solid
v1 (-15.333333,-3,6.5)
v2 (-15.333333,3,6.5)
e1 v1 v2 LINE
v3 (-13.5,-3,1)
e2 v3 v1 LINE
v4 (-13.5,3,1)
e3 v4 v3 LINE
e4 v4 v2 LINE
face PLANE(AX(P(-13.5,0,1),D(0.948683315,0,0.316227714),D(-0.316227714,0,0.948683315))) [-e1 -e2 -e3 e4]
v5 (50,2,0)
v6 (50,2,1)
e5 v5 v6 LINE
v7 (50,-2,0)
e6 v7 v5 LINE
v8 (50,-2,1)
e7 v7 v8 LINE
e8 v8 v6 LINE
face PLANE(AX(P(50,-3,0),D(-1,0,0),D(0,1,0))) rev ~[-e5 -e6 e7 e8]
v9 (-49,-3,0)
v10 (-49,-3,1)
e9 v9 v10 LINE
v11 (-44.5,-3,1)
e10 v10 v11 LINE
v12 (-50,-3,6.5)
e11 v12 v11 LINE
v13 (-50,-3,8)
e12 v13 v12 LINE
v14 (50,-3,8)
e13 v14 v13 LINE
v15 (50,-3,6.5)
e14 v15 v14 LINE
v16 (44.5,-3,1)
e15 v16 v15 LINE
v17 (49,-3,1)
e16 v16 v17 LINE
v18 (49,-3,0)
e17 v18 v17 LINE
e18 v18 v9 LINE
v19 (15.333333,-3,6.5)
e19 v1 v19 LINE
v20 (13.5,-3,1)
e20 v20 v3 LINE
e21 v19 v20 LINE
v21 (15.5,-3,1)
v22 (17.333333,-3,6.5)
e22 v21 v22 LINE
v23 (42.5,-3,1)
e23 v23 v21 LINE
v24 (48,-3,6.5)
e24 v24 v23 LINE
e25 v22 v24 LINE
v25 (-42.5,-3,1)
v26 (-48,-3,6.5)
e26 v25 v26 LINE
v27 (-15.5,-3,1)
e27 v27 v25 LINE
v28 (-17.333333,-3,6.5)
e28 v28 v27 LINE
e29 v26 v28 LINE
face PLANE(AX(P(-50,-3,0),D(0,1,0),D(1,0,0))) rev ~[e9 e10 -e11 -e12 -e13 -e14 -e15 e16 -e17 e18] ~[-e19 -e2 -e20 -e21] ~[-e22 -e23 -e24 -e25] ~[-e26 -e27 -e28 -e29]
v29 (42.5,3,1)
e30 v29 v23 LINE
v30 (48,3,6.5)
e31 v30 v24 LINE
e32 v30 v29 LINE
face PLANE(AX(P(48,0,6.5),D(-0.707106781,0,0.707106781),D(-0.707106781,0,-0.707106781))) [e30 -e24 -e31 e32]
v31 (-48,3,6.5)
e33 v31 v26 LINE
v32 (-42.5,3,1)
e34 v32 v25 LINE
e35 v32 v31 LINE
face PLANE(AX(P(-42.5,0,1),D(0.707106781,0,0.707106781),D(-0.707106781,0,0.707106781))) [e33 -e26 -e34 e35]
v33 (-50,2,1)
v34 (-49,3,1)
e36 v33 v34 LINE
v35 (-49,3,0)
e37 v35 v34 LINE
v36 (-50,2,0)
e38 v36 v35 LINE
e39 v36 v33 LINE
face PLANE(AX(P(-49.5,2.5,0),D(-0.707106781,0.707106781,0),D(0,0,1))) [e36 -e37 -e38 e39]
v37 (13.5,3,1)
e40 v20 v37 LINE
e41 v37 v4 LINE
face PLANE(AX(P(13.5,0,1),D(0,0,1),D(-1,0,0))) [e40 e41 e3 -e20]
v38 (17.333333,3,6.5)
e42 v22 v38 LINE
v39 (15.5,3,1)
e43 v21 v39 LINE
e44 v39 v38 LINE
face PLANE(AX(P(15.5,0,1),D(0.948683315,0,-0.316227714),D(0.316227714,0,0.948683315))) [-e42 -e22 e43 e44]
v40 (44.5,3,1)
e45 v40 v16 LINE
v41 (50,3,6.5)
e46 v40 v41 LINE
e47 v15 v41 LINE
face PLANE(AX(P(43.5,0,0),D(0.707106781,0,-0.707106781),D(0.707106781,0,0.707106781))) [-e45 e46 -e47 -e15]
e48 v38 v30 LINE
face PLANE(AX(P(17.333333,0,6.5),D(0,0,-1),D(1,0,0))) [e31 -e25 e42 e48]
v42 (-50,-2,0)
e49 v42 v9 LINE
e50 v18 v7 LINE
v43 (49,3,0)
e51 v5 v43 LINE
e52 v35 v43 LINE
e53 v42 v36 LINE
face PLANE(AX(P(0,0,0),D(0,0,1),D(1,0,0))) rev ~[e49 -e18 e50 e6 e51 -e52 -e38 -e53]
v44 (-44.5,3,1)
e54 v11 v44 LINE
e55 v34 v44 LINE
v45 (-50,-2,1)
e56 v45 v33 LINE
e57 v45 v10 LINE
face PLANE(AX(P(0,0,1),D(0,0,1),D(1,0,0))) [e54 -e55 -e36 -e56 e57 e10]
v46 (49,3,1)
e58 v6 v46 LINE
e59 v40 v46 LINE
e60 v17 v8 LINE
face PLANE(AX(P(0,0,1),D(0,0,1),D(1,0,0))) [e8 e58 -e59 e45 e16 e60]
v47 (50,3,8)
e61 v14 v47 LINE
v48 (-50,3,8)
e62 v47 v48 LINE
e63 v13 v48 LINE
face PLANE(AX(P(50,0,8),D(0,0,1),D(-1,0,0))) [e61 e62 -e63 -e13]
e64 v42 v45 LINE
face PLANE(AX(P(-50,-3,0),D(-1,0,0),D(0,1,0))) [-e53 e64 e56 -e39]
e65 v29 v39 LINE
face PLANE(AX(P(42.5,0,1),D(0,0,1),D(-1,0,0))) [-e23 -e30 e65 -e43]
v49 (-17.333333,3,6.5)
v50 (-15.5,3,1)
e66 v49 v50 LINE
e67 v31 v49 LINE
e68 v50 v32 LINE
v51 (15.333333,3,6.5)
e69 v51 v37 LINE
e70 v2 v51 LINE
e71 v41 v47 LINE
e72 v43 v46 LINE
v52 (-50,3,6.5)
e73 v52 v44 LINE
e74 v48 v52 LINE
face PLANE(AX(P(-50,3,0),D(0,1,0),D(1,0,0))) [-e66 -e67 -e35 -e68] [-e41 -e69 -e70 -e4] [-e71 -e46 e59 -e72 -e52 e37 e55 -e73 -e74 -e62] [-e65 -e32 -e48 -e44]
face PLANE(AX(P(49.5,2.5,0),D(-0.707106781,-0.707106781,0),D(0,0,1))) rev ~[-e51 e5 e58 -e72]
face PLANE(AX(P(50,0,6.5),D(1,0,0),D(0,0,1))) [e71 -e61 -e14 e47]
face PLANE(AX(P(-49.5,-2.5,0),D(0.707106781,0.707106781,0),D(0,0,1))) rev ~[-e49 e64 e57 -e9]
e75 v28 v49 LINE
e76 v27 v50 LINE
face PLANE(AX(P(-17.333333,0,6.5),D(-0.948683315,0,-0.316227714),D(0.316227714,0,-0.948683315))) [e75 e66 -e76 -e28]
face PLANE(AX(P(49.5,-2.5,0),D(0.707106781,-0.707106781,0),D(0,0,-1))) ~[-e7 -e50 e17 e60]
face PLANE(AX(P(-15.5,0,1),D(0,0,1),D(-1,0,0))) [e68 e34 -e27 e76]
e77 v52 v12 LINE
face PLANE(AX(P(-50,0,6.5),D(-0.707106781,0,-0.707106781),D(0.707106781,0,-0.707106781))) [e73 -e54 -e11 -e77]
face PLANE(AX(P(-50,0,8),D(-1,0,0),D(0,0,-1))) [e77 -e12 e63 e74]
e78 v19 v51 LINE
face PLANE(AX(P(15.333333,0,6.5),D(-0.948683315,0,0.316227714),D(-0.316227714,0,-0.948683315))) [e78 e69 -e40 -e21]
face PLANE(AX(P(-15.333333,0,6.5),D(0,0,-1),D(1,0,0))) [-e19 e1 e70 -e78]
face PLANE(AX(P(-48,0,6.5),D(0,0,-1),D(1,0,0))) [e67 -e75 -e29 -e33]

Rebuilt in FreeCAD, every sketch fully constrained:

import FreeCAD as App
import Part
import Sketcher

V = App.Vector


def edges_at(feature, points):
    """Names of the edges that pass closest to the given points."""
    edges = feature.Shape.Edges
    near = lambda p: min(range(len(edges)), key=lambda i: edges[i].distToShape(Part.Vertex(*p))[0])
    return sorted({f"Edge{near(p) + 1}" for p in points})

doc = App.newDocument("Part")
body = doc.addObject("PartDesign::Body", "Body")

sketch1 = doc.addObject("Sketcher::SketchObject", "Sketch")
body.addObject(sketch1)
sketch1.AttachmentSupport = (doc.XY_Plane, [""])
sketch1.MapMode = "FlatFace"
sketch1.addGeometry([
    Part.LineSegment(V(-50, 3, 0), V(-50, -3, 0)),
    Part.LineSegment(V(-50, -3, 0), V(50, -3, 0)),
    Part.LineSegment(V(50, -3, 0), V(50, 3, 0)),
    Part.LineSegment(V(50, 3, 0), V(-50, 3, 0)),
], False)
sketch1.addConstraint([
    Sketcher.Constraint("Coincident", 0, 2, 1, 1),
    Sketcher.Constraint("Coincident", 1, 2, 2, 1),
    Sketcher.Constraint("Coincident", 2, 2, 3, 1),
    Sketcher.Constraint("Coincident", 3, 2, 0, 1),
    Sketcher.Constraint("Vertical", 0),
    Sketcher.Constraint("Horizontal", 1),
    Sketcher.Constraint("Vertical", 2),
    Sketcher.Constraint("Horizontal", 3),
    Sketcher.Constraint("Symmetric", 0, 2, 2, 2, -1, 1),
    Sketcher.Constraint("DistanceX", 1, 1, 1, 2, 100.0),
    Sketcher.Constraint("DistanceY", 0, 2, 0, 1, 6.0),
])
pad1 = doc.addObject("PartDesign::Pad", "Pad")
body.addObject(pad1)
pad1.Profile = sketch1
pad1.Length = 1
doc.recompute()

chamfer = doc.addObject("PartDesign::Chamfer", "Chamfer")
body.addObject(chamfer)
chamfer.Base = (pad1, edges_at(pad1, [
    (-50, 3, 0.5),
    (-50, -3, 0.5),
    (50, 3, 0.5),
    (50, -3, 0.5),
]))
chamfer.Size = 1
body2 = doc.addObject("PartDesign::Body", "Body001")

sketch2 = doc.addObject("Sketcher::SketchObject", "Sketch001")
body2.addObject(sketch2)
sketch2.AttachmentSupport = (doc.getObject("XZ_Plane001"), [""])
sketch2.MapMode = "FlatFace"
sketch2.addGeometry([
    Part.LineSegment(V(-50, 8, 0), V(-50, 6.5, 0)),
    Part.LineSegment(V(-50, 6.5, 0), V(-43.5, 0, 0)),
    Part.LineSegment(V(-43.5, 0, 0), V(43.5, 0, 0)),
    Part.LineSegment(V(43.5, 0, 0), V(50, 6.5, 0)),
    Part.LineSegment(V(50, 6.5, 0), V(50, 8, 0)),
    Part.LineSegment(V(50, 8, 0), V(-50, 8, 0)),
    Part.LineSegment(V(-15.5, 1, 0), V(-42.5, 1, 0)),
    Part.LineSegment(V(-42.5, 1, 0), V(-48, 6.5, 0)),
    Part.LineSegment(V(-48, 6.5, 0), V(-17.333333, 6.5, 0)),
    Part.LineSegment(V(-17.333333, 6.5, 0), V(-15.5, 1, 0)),
    Part.LineSegment(V(13.5, 1, 0), V(-13.5, 1, 0)),
    Part.LineSegment(V(-13.5, 1, 0), V(-15.333333, 6.5, 0)),
    Part.LineSegment(V(-15.333333, 6.5, 0), V(15.333333, 6.5, 0)),
    Part.LineSegment(V(15.333333, 6.5, 0), V(13.5, 1, 0)),
    Part.LineSegment(V(17.333333, 6.5, 0), V(48, 6.5, 0)),
    Part.LineSegment(V(48, 6.5, 0), V(42.5, 1, 0)),
    Part.LineSegment(V(42.5, 1, 0), V(15.5, 1, 0)),
    Part.LineSegment(V(15.5, 1, 0), V(17.333333, 6.5, 0)),
], False)
sketch2.addConstraint([
    Sketcher.Constraint("Coincident", 0, 2, 1, 1),
    Sketcher.Constraint("Coincident", 1, 2, 2, 1),
    Sketcher.Constraint("Coincident", 2, 2, 3, 1),
    Sketcher.Constraint("Coincident", 3, 2, 4, 1),
    Sketcher.Constraint("Coincident", 4, 2, 5, 1),
    Sketcher.Constraint("Coincident", 5, 2, 0, 1),
    Sketcher.Constraint("Coincident", 6, 2, 7, 1),
    Sketcher.Constraint("Coincident", 7, 2, 8, 1),
    Sketcher.Constraint("Coincident", 8, 2, 9, 1),
    Sketcher.Constraint("Coincident", 9, 2, 6, 1),
    Sketcher.Constraint("Coincident", 10, 2, 11, 1),
    Sketcher.Constraint("Coincident", 11, 2, 12, 1),
    Sketcher.Constraint("Coincident", 12, 2, 13, 1),
    Sketcher.Constraint("Coincident", 13, 2, 10, 1),
    Sketcher.Constraint("Coincident", 14, 2, 15, 1),
    Sketcher.Constraint("Coincident", 15, 2, 16, 1),
    Sketcher.Constraint("Coincident", 16, 2, 17, 1),
    Sketcher.Constraint("Coincident", 17, 2, 14, 1),
    Sketcher.Constraint("Vertical", 0),
    Sketcher.Constraint("Horizontal", 2),
    Sketcher.Constraint("Vertical", 4),
    Sketcher.Constraint("Horizontal", 5),
    Sketcher.Constraint("Horizontal", 6),
    Sketcher.Constraint("Horizontal", 8),
    Sketcher.Constraint("Horizontal", 10),
    Sketcher.Constraint("Horizontal", 12),
    Sketcher.Constraint("Horizontal", 14),
    Sketcher.Constraint("Horizontal", 16),
    Sketcher.Constraint("Symmetric", 1, 2, 2, 2, -1, 1),
    Sketcher.Constraint("Symmetric", 0, 2, 3, 2, -2),
    Sketcher.Constraint("Symmetric", 7, 2, 14, 2, -2),
    Sketcher.Constraint("Symmetric", 6, 2, 15, 2, -2),
    Sketcher.Constraint("Perpendicular", 1, 3),
    Sketcher.Constraint("Perpendicular", 3, 7),
    Sketcher.Constraint("Parallel", 9, 11),
    Sketcher.Constraint("Parallel", 13, 17),
    Sketcher.Constraint("Horizontal", 3, 2, 7, 2),
    Sketcher.Constraint("Horizontal", 9, 2, 10, 2),
    Sketcher.Constraint("Horizontal", 8, 2, 11, 2),
    Sketcher.Constraint("Equal", 6, 10),
    Sketcher.Constraint("Equal", 8, 12),
    Sketcher.Constraint("Equal", 12, 14),
    Sketcher.Constraint("Equal", 10, 16),
    Sketcher.Constraint("DistanceX", 2, 1, 2, 2, 87.0),
    Sketcher.Constraint("DistanceX", 5, 2, 5, 1, 100.0),
    Sketcher.Constraint("DistanceX", 6, 2, 6, 1, 27.0),
    Sketcher.Constraint("DistanceY", 0, 2, 0, 1, 1.5),
    Sketcher.Constraint("DistanceY", -1, 1, 6, 2, 1.0),
    Sketcher.Constraint("DistanceX", 7, 2, -1, 1, 48.0),
    Sketcher.Constraint("DistanceX", 9, 2, 10, 2, 2.0),
])
pad2 = doc.addObject("PartDesign::Pad", "Pad001")
body2.addObject(pad2)
pad2.Profile = sketch2
pad2.Length = 6
pad2.Midplane = True
doc.recompute()

boolean = doc.addObject("PartDesign::Boolean", "Boolean")
body2.addObject(boolean)
boolean.Type = "Fuse"
boolean.addObjects([body])

doc.recompute()
